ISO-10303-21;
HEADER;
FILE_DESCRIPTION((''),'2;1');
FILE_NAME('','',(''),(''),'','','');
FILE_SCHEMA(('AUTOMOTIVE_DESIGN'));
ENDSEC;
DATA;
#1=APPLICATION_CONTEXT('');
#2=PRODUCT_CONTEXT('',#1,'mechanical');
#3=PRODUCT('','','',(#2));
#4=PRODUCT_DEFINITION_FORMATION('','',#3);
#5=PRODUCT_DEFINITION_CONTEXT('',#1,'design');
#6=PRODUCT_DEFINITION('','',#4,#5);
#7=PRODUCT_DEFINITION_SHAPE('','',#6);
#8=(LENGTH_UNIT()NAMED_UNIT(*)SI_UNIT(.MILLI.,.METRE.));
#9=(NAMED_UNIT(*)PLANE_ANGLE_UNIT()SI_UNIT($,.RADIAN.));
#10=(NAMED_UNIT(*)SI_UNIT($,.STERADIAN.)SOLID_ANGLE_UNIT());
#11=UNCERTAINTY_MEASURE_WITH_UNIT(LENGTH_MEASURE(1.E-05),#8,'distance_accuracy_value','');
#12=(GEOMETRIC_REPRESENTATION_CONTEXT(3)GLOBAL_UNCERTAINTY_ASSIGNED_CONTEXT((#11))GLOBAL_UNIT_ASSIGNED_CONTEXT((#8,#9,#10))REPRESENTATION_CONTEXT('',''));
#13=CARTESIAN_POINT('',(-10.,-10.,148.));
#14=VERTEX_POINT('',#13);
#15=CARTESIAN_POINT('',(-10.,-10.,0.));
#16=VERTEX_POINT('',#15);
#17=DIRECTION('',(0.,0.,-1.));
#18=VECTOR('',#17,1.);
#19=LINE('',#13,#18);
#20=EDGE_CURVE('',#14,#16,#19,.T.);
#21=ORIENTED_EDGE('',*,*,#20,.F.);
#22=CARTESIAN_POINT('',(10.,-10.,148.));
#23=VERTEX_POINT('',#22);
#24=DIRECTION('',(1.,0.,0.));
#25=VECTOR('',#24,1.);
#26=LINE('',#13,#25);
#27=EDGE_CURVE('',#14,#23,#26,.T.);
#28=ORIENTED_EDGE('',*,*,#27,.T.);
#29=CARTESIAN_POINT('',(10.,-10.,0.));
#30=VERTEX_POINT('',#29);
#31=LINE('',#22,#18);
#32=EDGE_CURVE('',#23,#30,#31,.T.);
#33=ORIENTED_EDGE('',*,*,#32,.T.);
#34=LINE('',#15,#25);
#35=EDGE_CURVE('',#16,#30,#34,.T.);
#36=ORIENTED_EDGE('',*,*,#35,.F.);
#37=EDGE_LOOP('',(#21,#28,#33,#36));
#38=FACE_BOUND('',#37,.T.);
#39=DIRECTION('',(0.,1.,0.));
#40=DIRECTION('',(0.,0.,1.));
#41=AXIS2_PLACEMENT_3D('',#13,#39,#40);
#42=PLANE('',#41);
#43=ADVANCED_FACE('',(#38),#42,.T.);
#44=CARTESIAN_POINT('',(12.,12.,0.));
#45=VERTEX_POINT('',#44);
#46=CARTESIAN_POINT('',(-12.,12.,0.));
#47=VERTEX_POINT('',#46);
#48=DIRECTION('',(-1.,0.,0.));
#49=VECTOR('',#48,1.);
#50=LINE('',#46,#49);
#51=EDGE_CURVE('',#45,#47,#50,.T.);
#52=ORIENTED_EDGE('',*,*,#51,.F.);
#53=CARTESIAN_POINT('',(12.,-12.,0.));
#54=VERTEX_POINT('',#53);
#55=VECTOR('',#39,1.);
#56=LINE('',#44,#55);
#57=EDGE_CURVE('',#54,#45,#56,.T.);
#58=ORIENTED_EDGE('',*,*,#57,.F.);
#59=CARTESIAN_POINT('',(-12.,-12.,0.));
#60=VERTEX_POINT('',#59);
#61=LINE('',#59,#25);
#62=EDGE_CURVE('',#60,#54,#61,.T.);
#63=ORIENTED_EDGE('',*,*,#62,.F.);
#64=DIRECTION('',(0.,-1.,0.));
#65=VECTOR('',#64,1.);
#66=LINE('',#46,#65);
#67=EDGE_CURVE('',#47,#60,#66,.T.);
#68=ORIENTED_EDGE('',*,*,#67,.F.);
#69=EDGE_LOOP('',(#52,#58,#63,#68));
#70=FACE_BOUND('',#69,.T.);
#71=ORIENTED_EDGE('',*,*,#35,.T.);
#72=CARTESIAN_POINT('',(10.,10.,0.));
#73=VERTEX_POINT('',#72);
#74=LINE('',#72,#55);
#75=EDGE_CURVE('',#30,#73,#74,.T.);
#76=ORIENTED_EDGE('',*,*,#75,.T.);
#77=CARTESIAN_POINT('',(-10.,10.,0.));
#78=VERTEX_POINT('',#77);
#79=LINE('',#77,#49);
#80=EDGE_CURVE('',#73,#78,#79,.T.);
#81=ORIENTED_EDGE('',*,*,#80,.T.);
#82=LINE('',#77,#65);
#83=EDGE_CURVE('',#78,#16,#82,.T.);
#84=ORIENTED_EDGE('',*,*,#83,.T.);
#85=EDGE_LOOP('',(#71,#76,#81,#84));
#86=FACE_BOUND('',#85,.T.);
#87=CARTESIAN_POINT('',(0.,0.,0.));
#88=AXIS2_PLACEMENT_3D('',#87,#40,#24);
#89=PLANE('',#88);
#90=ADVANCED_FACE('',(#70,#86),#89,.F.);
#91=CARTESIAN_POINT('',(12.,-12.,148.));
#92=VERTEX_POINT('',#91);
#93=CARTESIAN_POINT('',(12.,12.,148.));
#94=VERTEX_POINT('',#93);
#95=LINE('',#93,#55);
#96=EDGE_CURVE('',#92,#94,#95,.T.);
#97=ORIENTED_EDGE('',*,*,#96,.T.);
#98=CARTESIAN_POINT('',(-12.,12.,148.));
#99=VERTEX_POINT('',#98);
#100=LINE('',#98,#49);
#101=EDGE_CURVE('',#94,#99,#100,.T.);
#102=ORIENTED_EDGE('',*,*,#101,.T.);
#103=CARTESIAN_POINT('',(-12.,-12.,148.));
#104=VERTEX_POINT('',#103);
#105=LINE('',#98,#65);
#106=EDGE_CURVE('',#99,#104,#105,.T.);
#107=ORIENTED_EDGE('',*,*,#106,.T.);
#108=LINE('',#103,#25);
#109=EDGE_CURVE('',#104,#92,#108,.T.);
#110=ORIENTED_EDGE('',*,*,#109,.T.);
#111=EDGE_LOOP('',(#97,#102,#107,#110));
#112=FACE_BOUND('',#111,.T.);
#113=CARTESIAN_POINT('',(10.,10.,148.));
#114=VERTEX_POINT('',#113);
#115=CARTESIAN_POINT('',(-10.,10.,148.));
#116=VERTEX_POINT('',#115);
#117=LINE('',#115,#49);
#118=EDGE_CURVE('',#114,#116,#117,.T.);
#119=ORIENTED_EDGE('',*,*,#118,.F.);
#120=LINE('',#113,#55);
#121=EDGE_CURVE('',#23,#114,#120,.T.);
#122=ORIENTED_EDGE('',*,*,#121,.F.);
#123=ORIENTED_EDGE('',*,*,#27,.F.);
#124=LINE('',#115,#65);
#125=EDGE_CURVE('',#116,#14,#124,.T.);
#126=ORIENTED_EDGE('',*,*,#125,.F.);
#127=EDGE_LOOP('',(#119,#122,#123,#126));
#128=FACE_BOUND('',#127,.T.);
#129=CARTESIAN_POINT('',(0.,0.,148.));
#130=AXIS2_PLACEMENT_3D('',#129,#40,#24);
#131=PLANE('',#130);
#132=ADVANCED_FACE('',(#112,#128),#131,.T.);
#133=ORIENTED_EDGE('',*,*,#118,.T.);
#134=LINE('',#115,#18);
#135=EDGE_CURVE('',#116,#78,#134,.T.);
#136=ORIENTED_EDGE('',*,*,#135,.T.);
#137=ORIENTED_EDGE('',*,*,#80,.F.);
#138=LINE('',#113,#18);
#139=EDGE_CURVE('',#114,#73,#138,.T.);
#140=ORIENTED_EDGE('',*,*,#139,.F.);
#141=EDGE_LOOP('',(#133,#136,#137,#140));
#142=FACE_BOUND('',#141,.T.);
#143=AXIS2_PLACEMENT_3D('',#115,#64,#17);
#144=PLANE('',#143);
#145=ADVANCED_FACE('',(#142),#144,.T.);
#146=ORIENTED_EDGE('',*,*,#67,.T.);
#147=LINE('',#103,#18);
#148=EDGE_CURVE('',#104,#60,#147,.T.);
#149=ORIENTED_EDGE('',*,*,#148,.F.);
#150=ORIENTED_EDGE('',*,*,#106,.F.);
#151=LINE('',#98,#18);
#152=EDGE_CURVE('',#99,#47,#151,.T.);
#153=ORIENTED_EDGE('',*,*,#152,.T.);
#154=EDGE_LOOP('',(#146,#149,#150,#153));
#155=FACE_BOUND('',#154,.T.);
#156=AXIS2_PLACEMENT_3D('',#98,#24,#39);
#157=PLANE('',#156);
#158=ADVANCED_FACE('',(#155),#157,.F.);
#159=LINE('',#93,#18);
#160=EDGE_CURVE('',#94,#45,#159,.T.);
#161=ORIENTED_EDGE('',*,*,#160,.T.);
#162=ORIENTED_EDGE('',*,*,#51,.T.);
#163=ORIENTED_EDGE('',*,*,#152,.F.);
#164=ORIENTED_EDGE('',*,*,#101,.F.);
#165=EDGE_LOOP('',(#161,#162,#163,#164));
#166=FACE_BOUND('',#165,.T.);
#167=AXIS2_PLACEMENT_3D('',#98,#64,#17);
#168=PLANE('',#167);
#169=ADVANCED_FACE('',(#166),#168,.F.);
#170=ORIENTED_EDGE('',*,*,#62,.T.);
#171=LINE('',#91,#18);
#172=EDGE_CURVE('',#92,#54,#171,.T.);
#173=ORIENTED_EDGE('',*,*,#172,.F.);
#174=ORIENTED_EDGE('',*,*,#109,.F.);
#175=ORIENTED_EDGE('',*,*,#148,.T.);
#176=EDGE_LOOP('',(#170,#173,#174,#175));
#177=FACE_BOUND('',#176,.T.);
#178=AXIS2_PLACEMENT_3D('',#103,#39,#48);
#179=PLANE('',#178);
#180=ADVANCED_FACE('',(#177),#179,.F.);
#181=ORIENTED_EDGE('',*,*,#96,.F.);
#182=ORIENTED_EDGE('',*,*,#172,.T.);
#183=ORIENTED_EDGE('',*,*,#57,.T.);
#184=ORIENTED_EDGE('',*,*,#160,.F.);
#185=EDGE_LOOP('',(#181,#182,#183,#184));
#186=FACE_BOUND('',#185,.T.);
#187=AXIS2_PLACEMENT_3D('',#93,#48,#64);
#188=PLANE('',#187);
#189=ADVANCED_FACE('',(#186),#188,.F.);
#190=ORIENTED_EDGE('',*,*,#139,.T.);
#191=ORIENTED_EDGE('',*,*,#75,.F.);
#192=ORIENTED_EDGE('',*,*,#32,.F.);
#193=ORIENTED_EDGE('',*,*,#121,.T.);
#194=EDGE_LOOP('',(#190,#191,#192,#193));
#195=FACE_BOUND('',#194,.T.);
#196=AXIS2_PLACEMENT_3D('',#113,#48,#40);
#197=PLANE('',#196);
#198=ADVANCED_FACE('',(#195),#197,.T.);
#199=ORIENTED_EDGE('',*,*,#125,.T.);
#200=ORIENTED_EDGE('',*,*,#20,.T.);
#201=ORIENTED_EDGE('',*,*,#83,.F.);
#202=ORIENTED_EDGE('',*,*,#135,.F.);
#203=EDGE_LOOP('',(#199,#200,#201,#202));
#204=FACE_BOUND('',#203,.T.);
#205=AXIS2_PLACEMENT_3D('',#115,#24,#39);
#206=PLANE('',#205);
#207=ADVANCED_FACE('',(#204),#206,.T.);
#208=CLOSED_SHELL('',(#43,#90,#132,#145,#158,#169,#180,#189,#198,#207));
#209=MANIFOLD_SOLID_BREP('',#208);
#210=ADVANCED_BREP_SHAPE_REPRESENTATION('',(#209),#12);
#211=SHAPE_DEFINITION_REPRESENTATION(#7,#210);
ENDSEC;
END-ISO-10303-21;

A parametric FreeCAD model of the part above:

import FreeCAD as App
import Part
import Sketcher
from FreeCAD import Vector

doc = App.newDocument("Part")
body = doc.addObject("PartDesign::Body", "Body")

sketch1 = doc.addObject("Sketcher::SketchObject", "Sketch")
body.addObject(sketch1)
sketch1.AttachmentSupport = (doc.XY_Plane, [""])
sketch1.MapMode = "FlatFace"
sketch1.addGeometry([
    Part.LineSegment(Vector(-12, 12, 0), Vector(-12, -12, 0)),
    Part.LineSegment(Vector(-12, -12, 0), Vector(12, -12, 0)),
    Part.LineSegment(Vector(12, -12, 0), Vector(12, 12, 0)),
    Part.LineSegment(Vector(12, 12, 0), Vector(-12, 12, 0)),
    Part.LineSegment(Vector(10, -10, 0), Vector(-10, -10, 0)),
    Part.LineSegment(Vector(-10, -10, 0), Vector(-10, 10, 0)),
    Part.LineSegment(Vector(-10, 10, 0), Vector(10, 10, 0)),
    Part.LineSegment(Vector(10, 10, 0), Vector(10, -10, 0)),
], False)
sketch1.addConstraint([
    Sketcher.Constraint("Coincident", 0, 2, 1, 1),
    Sketcher.Constraint("Coincident", 1, 2, 2, 1),
    Sketcher.Constraint("Coincident", 2, 2, 3, 1),
    Sketcher.Constraint("Coincident", 3, 2, 0, 1),
    Sketcher.Constraint("Coincident", 4, 2, 5, 1),
    Sketcher.Constraint("Coincident", 5, 2, 6, 1),
    Sketcher.Constraint("Coincident", 6, 2, 7, 1),
    Sketcher.Constraint("Coincident", 7, 2, 4, 1),
    Sketcher.Constraint("Vertical", 0),
    Sketcher.Constraint("Horizontal", 1),
    Sketcher.Constraint("Vertical", 2),
    Sketcher.Constraint("Horizontal", 3),
    Sketcher.Constraint("Horizontal", 4),
    Sketcher.Constraint("Vertical", 5),
    Sketcher.Constraint("Horizontal", 6),
    Sketcher.Constraint("Vertical", 7),
    Sketcher.Constraint("Symmetric", 0, 2, 2, 2, -1, 1),
    Sketcher.Constraint("Symmetric", 4, 2, 6, 2, -1, 1),
    Sketcher.Constraint("Equal", 3, 0),
    Sketcher.Constraint("Equal", 6, 5),
    Sketcher.Constraint("DistanceX", 1, 1, 1, 2, 24.0),
    Sketcher.Constraint("DistanceX", 4, 2, 4, 1, 20.0),
])
pad1 = doc.addObject("PartDesign::Pad", "Pad")
body.addObject(pad1)
pad1.Profile = sketch1
pad1.Length = 148

doc.recompute()
